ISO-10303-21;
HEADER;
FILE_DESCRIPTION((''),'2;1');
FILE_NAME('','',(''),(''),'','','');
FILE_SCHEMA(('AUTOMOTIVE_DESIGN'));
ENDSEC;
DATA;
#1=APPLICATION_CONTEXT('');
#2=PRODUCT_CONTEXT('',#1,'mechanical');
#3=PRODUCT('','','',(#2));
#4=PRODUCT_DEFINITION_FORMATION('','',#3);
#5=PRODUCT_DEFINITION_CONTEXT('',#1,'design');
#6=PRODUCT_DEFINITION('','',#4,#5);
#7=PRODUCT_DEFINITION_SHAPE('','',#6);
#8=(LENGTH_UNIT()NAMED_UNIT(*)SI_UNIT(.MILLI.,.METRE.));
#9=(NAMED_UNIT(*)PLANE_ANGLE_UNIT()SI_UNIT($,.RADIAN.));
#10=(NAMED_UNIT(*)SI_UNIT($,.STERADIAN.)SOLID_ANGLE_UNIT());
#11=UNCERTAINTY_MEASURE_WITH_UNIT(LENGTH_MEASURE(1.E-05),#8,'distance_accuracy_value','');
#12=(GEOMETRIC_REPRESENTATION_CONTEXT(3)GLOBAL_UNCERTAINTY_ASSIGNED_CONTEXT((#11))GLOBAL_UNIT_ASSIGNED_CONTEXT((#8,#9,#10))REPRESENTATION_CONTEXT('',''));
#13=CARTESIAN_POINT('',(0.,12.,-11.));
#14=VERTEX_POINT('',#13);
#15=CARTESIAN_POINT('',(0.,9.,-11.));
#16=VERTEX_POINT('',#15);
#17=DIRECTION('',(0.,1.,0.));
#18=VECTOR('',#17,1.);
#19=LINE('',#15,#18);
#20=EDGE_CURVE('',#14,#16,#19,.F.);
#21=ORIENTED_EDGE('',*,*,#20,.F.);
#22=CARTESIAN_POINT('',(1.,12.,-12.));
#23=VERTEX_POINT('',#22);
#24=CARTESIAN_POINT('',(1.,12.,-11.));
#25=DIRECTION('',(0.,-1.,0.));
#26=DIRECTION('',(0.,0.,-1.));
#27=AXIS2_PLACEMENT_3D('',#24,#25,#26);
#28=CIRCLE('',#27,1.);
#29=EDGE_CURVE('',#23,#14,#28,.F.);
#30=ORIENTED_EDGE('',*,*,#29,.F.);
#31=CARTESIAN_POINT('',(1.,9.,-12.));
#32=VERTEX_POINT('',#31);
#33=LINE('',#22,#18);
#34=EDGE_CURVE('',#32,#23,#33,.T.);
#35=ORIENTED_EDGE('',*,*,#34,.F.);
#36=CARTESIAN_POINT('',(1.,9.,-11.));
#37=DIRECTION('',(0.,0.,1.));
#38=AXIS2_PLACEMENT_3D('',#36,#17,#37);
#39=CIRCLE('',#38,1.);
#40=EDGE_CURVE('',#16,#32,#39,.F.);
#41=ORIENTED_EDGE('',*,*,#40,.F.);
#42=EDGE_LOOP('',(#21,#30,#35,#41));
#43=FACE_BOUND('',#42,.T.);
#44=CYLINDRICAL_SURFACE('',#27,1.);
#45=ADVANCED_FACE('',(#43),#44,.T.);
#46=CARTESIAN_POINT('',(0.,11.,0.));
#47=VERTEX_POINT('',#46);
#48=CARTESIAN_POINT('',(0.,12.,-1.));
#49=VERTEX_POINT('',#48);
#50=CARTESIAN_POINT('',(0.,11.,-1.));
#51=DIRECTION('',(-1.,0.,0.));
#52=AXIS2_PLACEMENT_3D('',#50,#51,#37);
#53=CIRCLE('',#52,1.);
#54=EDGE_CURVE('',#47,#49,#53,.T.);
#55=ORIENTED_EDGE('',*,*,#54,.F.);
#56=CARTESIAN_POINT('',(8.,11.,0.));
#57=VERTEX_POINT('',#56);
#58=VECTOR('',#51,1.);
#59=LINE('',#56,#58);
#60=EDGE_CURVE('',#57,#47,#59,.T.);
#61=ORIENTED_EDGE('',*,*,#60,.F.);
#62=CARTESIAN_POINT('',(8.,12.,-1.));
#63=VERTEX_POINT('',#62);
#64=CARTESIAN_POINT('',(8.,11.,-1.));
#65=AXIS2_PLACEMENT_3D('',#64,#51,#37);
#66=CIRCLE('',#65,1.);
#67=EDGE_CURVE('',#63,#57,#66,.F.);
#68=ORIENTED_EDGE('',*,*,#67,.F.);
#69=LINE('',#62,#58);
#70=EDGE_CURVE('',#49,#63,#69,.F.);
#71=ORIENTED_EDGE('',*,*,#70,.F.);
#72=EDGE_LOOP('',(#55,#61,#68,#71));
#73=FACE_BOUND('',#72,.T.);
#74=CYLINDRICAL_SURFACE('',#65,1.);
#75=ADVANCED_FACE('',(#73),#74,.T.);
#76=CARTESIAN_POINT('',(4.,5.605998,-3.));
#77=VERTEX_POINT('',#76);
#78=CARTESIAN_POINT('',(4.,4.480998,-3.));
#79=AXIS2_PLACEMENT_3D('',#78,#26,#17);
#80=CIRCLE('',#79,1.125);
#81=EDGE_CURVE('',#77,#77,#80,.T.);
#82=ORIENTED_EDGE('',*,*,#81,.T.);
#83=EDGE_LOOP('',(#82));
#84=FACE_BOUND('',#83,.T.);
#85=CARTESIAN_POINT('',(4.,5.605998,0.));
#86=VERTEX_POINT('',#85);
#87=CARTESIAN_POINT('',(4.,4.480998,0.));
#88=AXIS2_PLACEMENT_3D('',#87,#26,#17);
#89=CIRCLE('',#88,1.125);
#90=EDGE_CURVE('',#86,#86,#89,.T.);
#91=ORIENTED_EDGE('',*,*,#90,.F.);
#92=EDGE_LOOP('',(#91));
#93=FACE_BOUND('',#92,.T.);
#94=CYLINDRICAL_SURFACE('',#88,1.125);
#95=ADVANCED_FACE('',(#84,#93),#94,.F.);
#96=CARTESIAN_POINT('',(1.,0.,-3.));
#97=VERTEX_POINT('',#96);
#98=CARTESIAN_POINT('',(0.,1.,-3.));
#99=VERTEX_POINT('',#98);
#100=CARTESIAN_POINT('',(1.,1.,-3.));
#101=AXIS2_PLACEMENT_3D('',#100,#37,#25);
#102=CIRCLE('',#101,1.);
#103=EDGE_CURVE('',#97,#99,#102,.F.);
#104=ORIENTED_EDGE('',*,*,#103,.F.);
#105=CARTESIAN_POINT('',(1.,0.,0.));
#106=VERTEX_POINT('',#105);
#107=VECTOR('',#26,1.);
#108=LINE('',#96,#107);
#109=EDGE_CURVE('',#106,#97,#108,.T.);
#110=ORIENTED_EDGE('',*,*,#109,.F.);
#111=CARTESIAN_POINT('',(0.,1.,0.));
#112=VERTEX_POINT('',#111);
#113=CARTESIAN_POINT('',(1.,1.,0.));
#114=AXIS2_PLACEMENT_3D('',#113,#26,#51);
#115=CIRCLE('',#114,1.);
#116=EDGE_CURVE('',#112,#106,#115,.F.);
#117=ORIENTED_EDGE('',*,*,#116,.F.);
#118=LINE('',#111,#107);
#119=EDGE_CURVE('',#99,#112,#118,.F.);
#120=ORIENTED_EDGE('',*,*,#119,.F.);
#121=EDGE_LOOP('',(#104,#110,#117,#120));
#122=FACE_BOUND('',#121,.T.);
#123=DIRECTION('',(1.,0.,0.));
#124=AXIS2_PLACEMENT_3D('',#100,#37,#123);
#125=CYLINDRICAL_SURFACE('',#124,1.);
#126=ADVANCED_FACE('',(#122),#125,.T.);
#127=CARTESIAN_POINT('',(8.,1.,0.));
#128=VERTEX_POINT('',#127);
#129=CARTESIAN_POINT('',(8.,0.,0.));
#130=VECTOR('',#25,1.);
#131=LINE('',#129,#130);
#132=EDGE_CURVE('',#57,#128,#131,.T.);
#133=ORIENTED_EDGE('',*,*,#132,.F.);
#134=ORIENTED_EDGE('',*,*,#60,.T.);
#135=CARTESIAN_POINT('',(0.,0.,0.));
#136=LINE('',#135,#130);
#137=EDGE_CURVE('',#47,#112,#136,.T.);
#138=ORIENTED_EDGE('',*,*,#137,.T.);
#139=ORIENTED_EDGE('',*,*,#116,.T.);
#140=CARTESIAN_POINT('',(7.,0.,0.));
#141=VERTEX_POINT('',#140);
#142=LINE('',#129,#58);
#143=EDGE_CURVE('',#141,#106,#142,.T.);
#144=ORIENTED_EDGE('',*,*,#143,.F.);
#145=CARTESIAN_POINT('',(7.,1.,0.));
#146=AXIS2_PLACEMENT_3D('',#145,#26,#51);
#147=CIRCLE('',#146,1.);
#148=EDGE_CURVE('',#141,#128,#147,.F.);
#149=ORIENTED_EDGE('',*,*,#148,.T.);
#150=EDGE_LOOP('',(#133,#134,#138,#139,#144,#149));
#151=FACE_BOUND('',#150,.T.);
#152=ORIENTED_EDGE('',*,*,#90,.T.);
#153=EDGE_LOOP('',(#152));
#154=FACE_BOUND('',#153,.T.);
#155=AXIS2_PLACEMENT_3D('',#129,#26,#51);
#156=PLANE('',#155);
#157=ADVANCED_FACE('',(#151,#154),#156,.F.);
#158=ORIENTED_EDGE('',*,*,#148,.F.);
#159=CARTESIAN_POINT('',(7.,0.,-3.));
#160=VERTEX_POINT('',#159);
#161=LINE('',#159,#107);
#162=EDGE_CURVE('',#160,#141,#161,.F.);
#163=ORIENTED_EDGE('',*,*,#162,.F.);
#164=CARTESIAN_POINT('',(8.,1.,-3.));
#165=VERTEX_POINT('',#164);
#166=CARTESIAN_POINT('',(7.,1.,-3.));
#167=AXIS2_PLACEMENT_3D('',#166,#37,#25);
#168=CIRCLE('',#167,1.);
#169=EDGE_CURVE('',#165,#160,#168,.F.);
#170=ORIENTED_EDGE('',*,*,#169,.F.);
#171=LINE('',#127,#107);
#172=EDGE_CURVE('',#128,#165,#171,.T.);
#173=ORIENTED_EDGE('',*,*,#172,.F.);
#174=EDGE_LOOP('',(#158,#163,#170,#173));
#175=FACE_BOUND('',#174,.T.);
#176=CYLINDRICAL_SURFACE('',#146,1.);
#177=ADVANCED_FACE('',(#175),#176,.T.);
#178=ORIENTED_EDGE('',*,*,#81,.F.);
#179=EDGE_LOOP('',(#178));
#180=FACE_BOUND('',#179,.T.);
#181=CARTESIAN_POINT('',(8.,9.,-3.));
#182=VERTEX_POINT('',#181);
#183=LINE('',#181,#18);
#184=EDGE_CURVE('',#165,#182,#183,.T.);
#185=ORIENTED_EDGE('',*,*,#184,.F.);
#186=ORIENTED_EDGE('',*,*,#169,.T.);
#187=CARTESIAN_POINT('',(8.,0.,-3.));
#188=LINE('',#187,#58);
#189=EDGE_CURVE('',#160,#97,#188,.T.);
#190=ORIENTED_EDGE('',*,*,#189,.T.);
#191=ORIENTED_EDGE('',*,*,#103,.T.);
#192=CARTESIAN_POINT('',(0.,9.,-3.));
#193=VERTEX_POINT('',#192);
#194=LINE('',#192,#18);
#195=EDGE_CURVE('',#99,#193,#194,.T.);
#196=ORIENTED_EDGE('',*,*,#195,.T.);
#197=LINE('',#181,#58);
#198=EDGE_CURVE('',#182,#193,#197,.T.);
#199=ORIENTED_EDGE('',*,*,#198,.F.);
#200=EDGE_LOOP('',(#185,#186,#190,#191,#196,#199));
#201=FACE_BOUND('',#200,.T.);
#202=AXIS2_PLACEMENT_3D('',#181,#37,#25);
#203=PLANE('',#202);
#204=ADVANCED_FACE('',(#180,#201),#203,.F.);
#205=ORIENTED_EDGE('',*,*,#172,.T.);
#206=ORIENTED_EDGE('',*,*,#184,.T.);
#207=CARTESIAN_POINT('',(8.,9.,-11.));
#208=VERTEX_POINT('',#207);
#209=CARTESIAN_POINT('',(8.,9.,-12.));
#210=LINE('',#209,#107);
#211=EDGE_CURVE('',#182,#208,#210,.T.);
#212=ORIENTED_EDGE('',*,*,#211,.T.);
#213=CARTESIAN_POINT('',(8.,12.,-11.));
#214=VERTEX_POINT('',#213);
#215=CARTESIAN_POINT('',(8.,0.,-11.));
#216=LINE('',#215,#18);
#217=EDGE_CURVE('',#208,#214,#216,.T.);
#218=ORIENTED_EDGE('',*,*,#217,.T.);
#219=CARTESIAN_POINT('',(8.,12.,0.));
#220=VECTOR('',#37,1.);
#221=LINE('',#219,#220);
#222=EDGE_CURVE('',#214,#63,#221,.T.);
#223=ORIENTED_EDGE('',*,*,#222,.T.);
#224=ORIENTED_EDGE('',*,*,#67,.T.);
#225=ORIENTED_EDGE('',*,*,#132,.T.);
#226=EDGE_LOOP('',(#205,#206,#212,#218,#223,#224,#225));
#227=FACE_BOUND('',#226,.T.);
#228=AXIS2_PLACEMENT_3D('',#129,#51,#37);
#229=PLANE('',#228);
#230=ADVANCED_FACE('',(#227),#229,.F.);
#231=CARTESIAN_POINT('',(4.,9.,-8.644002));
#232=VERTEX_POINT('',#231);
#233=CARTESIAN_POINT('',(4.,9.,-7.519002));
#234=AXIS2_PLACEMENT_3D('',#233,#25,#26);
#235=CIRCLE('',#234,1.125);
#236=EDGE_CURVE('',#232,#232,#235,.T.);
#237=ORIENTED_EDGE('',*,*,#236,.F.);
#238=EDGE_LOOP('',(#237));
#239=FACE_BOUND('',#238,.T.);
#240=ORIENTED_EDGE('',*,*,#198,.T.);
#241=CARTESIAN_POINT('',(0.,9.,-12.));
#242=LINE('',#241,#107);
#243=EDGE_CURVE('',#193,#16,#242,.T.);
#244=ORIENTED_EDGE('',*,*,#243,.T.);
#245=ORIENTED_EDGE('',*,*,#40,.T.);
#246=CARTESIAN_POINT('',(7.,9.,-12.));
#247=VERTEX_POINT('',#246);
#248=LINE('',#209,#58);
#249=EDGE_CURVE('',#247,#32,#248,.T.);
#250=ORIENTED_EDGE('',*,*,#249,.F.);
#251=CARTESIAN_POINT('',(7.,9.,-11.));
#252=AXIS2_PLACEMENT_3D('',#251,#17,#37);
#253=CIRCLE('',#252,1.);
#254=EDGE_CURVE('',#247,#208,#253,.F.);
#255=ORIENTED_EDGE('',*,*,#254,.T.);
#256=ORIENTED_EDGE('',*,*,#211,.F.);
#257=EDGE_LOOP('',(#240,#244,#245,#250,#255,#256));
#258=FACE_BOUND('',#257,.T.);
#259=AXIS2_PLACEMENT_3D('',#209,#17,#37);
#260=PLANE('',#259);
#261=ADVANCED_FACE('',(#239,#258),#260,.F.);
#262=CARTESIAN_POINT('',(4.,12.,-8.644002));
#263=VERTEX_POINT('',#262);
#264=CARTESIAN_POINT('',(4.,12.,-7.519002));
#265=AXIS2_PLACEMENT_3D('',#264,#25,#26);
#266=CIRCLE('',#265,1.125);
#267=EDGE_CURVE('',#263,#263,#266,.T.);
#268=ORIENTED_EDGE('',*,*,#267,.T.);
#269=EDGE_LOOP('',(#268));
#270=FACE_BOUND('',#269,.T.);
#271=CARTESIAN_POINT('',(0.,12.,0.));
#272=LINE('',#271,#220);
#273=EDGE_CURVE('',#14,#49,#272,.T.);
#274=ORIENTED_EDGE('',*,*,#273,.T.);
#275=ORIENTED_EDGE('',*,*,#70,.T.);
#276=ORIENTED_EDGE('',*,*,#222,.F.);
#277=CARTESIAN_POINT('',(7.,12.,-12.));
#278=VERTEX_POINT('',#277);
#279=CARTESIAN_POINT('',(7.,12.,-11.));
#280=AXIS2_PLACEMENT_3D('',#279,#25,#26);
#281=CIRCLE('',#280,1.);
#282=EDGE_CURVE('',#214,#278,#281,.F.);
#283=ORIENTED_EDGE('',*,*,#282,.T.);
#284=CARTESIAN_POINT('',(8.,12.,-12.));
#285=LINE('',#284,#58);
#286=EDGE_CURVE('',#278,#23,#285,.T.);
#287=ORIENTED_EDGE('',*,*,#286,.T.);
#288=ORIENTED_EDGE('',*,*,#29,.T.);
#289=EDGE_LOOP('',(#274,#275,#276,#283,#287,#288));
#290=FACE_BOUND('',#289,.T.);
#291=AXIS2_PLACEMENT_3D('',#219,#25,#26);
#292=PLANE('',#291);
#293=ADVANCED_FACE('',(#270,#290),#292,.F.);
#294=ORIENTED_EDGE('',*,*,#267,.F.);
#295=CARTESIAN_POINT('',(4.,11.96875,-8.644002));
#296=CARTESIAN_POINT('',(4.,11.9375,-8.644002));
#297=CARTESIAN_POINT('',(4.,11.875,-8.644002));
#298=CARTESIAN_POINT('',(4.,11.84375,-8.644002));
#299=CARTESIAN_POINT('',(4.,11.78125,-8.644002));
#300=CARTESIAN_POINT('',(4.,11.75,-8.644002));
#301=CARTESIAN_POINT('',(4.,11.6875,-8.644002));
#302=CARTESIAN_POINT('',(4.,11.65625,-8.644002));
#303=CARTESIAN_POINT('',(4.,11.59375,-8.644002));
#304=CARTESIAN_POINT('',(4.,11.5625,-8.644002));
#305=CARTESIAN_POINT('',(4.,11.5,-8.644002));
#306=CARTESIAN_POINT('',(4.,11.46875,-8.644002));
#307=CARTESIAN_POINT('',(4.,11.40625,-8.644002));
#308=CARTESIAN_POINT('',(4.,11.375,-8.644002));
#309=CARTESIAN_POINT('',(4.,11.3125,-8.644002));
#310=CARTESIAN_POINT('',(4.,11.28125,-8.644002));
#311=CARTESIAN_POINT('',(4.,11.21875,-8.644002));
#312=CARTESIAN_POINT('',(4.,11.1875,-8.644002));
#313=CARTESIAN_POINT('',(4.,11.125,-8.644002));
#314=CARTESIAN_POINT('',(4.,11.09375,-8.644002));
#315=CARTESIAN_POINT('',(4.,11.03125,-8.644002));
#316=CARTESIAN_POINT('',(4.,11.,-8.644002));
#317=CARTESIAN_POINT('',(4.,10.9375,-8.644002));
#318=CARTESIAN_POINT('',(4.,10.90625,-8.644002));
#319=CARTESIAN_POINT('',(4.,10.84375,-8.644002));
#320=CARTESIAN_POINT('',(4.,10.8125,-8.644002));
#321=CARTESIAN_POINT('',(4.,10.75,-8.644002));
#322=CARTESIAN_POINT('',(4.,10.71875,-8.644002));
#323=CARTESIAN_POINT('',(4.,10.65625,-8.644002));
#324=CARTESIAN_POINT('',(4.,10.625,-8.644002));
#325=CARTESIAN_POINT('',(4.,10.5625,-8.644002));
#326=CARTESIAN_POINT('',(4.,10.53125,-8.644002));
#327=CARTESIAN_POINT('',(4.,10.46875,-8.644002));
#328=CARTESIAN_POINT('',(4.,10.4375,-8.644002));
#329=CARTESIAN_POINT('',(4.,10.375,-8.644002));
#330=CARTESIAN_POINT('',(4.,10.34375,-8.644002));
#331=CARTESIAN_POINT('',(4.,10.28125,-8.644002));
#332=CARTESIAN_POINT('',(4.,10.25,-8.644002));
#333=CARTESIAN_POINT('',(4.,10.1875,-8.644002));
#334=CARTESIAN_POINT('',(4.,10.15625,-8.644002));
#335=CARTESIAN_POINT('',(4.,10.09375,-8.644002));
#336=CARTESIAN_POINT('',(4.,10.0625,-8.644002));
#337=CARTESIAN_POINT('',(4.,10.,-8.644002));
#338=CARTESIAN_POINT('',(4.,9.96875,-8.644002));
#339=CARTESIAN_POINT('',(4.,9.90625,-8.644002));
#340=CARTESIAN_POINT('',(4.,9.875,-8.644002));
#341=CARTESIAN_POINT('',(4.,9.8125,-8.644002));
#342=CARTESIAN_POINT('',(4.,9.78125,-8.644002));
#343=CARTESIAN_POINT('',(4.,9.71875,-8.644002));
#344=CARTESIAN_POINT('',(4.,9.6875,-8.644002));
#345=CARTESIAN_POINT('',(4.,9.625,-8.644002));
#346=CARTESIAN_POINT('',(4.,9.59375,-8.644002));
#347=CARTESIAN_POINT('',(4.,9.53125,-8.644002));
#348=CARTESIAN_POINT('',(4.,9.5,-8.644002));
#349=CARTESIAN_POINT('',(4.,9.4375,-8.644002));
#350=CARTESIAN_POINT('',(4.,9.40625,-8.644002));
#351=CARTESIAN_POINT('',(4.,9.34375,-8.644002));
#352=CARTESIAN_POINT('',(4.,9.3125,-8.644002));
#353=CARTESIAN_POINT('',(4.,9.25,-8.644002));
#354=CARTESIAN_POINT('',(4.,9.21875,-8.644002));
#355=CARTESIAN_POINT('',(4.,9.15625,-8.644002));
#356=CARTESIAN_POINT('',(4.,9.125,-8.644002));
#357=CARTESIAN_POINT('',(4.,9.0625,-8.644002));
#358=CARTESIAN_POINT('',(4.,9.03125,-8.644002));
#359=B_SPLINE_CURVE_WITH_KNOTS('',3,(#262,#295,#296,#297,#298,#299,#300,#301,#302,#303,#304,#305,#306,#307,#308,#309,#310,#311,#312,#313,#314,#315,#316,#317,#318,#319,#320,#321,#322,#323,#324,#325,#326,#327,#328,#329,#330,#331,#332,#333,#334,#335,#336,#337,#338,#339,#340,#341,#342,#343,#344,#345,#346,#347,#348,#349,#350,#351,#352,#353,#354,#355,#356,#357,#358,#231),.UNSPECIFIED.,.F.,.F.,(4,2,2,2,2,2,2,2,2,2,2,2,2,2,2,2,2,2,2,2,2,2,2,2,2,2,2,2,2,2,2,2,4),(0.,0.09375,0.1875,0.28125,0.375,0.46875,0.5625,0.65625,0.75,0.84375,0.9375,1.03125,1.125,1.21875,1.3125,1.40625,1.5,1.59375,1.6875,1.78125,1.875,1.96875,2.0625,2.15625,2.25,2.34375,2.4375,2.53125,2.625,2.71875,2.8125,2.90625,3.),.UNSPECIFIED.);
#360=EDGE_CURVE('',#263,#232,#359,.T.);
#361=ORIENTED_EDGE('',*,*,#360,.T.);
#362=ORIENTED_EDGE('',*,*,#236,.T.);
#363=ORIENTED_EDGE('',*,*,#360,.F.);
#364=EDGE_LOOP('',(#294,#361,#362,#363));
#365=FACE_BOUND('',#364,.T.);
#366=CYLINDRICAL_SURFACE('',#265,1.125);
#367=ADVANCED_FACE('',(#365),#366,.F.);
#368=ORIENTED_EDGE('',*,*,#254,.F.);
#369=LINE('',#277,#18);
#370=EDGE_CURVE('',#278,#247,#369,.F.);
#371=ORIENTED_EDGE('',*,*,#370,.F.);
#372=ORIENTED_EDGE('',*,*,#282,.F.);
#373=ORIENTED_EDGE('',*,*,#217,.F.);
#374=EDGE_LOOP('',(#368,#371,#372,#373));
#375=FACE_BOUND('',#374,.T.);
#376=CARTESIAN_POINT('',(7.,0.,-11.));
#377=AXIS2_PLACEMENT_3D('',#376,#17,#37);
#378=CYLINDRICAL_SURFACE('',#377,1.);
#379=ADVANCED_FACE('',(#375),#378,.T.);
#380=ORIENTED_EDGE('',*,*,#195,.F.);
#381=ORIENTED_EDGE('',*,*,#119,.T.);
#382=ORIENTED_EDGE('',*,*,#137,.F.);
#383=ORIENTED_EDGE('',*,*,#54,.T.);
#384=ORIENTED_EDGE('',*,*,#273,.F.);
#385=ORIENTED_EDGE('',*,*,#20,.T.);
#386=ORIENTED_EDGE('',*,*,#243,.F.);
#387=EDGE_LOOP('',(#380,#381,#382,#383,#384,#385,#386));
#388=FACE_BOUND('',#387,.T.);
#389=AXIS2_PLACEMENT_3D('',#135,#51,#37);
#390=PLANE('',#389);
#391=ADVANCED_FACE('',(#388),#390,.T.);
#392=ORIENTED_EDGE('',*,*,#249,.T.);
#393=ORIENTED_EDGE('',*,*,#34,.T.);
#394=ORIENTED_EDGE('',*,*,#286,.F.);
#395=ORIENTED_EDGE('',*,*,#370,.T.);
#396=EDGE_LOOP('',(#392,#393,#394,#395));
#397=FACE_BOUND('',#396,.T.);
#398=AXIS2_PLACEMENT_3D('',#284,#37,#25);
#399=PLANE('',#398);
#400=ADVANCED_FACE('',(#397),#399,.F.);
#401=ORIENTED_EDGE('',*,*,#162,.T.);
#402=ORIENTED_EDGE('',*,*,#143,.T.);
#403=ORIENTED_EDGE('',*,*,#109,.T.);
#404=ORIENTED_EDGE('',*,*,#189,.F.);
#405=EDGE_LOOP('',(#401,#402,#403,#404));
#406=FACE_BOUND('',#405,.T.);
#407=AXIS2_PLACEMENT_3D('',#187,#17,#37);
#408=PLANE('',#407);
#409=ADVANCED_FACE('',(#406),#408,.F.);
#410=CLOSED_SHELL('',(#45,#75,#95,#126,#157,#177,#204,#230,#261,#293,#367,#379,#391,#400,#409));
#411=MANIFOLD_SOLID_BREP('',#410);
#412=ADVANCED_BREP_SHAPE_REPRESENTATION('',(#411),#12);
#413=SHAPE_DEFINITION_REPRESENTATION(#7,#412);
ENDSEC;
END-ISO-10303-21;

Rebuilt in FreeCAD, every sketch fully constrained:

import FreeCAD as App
import Part
import Sketcher
from FreeCAD import Vector


def edges_at(feature, points):
    """Names of the edges that pass closest to the given points."""
    edges = feature.Shape.Edges
    near = lambda p: min(range(len(edges)), key=lambda i: edges[i].distToShape(Part.Vertex(*p))[0])
    return sorted({f"Edge{near(p) + 1}" for p in points})

doc = App.newDocument("Part")
body = doc.addObject("PartDesign::Body", "Body")

# Sketch on YZ plane
sketch1 = body.newObject("Sketcher::SketchObject", "Sketch")
sketch1.AttachmentSupport = (doc.getObject("YZ_Plane"), [""])
sketch1.MapMode = "FlatFace"
sketch1.addGeometry([
    Part.LineSegment(Vector(12, 0, 0), Vector(0, 0, 0)),  # 0
    Part.LineSegment(Vector(0, 0, 0), Vector(0, -3, 0)),  # 1
    Part.LineSegment(Vector(0, -3, 0), Vector(9, -3, 0)),  # 2
    Part.LineSegment(Vector(9, -3, 0), Vector(9, -12, 0)),  # 3
    Part.LineSegment(Vector(9, -12, 0), Vector(12, -12, 0)),  # 4
    Part.LineSegment(Vector(12, -12, 0), Vector(12, 0, 0)),  # 5
], False)
sketch1.addConstraint([
    Sketcher.Constraint("Coincident", 0, 2, 1, 1),
    Sketcher.Constraint("Coincident", 1, 2, 2, 1),
    Sketcher.Constraint("Coincident", 2, 2, 3, 1),
    Sketcher.Constraint("Coincident", 3, 2, 4, 1),
    Sketcher.Constraint("Coincident", 4, 2, 5, 1),
    Sketcher.Constraint("Coincident", 5, 2, 0, 1),
    Sketcher.Constraint("Horizontal", 0),
    Sketcher.Constraint("Vertical", 1),
    Sketcher.Constraint("Horizontal", 2),
    Sketcher.Constraint("Vertical", 3),
    Sketcher.Constraint("Horizontal", 4),
    Sketcher.Constraint("Vertical", 5),
    Sketcher.Constraint("Coincident", 0, 2, -1, 1),
    Sketcher.Constraint("Equal", 4, 1),
    Sketcher.Constraint("Equal", 2, 3),
    Sketcher.Constraint("DistanceX", 0, 2, 0, 1, 12.0),
    Sketcher.Constraint("DistanceX", 2, 1, 2, 2, 9.0),
])
pad1 = body.newObject("PartDesign::Pad", "Pad")
pad1.Profile = sketch1
pad1.Length = 8
doc.recompute()

fillet = body.newObject("PartDesign::Fillet", "Fillet")
fillet.Base = (pad1, edges_at(pad1, [
    (8, 10.5, -12),
    (8, 0, -1.5),
    (0, 10.5, -12),
    (0, 0, -1.5),
]))
fillet.Radius = 1

# Sketch on XZ plane
sketch2 = body.newObject("Sketcher::SketchObject", "Sketch001")
sketch2.AttachmentSupport = (doc.getObject("XZ_Plane"), [""])
sketch2.MapMode = "FlatFace"
sketch2.AttachmentOffset = App.Placement(Vector(0, 0, -9), App.Rotation())
sketch2.addGeometry(Part.Circle(Vector(4, -7.5, 0), Vector(0, 0, 1), 1.1), False)
sketch2.addConstraint([
    Sketcher.Constraint("Diameter", 0, 2.25),
    Sketcher.Constraint("DistanceX", -1, 1, 0, 3, 4.0),
    Sketcher.Constraint("DistanceY", 0, 3, -1, 1, 7.519002),
])
pocket1 = body.newObject("PartDesign::Pocket", "Pocket")
pocket1.Profile = sketch2
pocket1.Type = "ThroughAll"

# Sketch on XY plane
sketch3 = body.newObject("Sketcher::SketchObject", "Sketch002")
sketch3.AttachmentSupport = (doc.getObject("XY_Plane"), [""])
sketch3.MapMode = "FlatFace"
sketch3.AttachmentOffset = App.Placement(Vector(0, 0, -3), App.Rotation())
sketch3.addGeometry(Part.Circle(Vector(4, 4.5, 0), Vector(0, 0, 1), 1.1), False)
sketch3.addConstraint([
    Sketcher.Constraint("Diameter", 0, 2.25),
    Sketcher.Constraint("DistanceX", -1, 1, 0, 3, 4.0),
    Sketcher.Constraint("DistanceY", -1, 1, 0, 3, 4.480998),
])
pocket2 = body.newObject("PartDesign::Pocket", "Pocket001")
pocket2.Profile = sketch3
pocket2.Type = "ThroughAll"
pocket2.Reversed = True
doc.recompute()

fillet2 = body.newObject("PartDesign::Fillet", "Fillet001")
fillet2.Base = (pocket2, edges_at(pocket2, [(4, 12, 0)]))
fillet2.Radius = 1

doc.recompute()
